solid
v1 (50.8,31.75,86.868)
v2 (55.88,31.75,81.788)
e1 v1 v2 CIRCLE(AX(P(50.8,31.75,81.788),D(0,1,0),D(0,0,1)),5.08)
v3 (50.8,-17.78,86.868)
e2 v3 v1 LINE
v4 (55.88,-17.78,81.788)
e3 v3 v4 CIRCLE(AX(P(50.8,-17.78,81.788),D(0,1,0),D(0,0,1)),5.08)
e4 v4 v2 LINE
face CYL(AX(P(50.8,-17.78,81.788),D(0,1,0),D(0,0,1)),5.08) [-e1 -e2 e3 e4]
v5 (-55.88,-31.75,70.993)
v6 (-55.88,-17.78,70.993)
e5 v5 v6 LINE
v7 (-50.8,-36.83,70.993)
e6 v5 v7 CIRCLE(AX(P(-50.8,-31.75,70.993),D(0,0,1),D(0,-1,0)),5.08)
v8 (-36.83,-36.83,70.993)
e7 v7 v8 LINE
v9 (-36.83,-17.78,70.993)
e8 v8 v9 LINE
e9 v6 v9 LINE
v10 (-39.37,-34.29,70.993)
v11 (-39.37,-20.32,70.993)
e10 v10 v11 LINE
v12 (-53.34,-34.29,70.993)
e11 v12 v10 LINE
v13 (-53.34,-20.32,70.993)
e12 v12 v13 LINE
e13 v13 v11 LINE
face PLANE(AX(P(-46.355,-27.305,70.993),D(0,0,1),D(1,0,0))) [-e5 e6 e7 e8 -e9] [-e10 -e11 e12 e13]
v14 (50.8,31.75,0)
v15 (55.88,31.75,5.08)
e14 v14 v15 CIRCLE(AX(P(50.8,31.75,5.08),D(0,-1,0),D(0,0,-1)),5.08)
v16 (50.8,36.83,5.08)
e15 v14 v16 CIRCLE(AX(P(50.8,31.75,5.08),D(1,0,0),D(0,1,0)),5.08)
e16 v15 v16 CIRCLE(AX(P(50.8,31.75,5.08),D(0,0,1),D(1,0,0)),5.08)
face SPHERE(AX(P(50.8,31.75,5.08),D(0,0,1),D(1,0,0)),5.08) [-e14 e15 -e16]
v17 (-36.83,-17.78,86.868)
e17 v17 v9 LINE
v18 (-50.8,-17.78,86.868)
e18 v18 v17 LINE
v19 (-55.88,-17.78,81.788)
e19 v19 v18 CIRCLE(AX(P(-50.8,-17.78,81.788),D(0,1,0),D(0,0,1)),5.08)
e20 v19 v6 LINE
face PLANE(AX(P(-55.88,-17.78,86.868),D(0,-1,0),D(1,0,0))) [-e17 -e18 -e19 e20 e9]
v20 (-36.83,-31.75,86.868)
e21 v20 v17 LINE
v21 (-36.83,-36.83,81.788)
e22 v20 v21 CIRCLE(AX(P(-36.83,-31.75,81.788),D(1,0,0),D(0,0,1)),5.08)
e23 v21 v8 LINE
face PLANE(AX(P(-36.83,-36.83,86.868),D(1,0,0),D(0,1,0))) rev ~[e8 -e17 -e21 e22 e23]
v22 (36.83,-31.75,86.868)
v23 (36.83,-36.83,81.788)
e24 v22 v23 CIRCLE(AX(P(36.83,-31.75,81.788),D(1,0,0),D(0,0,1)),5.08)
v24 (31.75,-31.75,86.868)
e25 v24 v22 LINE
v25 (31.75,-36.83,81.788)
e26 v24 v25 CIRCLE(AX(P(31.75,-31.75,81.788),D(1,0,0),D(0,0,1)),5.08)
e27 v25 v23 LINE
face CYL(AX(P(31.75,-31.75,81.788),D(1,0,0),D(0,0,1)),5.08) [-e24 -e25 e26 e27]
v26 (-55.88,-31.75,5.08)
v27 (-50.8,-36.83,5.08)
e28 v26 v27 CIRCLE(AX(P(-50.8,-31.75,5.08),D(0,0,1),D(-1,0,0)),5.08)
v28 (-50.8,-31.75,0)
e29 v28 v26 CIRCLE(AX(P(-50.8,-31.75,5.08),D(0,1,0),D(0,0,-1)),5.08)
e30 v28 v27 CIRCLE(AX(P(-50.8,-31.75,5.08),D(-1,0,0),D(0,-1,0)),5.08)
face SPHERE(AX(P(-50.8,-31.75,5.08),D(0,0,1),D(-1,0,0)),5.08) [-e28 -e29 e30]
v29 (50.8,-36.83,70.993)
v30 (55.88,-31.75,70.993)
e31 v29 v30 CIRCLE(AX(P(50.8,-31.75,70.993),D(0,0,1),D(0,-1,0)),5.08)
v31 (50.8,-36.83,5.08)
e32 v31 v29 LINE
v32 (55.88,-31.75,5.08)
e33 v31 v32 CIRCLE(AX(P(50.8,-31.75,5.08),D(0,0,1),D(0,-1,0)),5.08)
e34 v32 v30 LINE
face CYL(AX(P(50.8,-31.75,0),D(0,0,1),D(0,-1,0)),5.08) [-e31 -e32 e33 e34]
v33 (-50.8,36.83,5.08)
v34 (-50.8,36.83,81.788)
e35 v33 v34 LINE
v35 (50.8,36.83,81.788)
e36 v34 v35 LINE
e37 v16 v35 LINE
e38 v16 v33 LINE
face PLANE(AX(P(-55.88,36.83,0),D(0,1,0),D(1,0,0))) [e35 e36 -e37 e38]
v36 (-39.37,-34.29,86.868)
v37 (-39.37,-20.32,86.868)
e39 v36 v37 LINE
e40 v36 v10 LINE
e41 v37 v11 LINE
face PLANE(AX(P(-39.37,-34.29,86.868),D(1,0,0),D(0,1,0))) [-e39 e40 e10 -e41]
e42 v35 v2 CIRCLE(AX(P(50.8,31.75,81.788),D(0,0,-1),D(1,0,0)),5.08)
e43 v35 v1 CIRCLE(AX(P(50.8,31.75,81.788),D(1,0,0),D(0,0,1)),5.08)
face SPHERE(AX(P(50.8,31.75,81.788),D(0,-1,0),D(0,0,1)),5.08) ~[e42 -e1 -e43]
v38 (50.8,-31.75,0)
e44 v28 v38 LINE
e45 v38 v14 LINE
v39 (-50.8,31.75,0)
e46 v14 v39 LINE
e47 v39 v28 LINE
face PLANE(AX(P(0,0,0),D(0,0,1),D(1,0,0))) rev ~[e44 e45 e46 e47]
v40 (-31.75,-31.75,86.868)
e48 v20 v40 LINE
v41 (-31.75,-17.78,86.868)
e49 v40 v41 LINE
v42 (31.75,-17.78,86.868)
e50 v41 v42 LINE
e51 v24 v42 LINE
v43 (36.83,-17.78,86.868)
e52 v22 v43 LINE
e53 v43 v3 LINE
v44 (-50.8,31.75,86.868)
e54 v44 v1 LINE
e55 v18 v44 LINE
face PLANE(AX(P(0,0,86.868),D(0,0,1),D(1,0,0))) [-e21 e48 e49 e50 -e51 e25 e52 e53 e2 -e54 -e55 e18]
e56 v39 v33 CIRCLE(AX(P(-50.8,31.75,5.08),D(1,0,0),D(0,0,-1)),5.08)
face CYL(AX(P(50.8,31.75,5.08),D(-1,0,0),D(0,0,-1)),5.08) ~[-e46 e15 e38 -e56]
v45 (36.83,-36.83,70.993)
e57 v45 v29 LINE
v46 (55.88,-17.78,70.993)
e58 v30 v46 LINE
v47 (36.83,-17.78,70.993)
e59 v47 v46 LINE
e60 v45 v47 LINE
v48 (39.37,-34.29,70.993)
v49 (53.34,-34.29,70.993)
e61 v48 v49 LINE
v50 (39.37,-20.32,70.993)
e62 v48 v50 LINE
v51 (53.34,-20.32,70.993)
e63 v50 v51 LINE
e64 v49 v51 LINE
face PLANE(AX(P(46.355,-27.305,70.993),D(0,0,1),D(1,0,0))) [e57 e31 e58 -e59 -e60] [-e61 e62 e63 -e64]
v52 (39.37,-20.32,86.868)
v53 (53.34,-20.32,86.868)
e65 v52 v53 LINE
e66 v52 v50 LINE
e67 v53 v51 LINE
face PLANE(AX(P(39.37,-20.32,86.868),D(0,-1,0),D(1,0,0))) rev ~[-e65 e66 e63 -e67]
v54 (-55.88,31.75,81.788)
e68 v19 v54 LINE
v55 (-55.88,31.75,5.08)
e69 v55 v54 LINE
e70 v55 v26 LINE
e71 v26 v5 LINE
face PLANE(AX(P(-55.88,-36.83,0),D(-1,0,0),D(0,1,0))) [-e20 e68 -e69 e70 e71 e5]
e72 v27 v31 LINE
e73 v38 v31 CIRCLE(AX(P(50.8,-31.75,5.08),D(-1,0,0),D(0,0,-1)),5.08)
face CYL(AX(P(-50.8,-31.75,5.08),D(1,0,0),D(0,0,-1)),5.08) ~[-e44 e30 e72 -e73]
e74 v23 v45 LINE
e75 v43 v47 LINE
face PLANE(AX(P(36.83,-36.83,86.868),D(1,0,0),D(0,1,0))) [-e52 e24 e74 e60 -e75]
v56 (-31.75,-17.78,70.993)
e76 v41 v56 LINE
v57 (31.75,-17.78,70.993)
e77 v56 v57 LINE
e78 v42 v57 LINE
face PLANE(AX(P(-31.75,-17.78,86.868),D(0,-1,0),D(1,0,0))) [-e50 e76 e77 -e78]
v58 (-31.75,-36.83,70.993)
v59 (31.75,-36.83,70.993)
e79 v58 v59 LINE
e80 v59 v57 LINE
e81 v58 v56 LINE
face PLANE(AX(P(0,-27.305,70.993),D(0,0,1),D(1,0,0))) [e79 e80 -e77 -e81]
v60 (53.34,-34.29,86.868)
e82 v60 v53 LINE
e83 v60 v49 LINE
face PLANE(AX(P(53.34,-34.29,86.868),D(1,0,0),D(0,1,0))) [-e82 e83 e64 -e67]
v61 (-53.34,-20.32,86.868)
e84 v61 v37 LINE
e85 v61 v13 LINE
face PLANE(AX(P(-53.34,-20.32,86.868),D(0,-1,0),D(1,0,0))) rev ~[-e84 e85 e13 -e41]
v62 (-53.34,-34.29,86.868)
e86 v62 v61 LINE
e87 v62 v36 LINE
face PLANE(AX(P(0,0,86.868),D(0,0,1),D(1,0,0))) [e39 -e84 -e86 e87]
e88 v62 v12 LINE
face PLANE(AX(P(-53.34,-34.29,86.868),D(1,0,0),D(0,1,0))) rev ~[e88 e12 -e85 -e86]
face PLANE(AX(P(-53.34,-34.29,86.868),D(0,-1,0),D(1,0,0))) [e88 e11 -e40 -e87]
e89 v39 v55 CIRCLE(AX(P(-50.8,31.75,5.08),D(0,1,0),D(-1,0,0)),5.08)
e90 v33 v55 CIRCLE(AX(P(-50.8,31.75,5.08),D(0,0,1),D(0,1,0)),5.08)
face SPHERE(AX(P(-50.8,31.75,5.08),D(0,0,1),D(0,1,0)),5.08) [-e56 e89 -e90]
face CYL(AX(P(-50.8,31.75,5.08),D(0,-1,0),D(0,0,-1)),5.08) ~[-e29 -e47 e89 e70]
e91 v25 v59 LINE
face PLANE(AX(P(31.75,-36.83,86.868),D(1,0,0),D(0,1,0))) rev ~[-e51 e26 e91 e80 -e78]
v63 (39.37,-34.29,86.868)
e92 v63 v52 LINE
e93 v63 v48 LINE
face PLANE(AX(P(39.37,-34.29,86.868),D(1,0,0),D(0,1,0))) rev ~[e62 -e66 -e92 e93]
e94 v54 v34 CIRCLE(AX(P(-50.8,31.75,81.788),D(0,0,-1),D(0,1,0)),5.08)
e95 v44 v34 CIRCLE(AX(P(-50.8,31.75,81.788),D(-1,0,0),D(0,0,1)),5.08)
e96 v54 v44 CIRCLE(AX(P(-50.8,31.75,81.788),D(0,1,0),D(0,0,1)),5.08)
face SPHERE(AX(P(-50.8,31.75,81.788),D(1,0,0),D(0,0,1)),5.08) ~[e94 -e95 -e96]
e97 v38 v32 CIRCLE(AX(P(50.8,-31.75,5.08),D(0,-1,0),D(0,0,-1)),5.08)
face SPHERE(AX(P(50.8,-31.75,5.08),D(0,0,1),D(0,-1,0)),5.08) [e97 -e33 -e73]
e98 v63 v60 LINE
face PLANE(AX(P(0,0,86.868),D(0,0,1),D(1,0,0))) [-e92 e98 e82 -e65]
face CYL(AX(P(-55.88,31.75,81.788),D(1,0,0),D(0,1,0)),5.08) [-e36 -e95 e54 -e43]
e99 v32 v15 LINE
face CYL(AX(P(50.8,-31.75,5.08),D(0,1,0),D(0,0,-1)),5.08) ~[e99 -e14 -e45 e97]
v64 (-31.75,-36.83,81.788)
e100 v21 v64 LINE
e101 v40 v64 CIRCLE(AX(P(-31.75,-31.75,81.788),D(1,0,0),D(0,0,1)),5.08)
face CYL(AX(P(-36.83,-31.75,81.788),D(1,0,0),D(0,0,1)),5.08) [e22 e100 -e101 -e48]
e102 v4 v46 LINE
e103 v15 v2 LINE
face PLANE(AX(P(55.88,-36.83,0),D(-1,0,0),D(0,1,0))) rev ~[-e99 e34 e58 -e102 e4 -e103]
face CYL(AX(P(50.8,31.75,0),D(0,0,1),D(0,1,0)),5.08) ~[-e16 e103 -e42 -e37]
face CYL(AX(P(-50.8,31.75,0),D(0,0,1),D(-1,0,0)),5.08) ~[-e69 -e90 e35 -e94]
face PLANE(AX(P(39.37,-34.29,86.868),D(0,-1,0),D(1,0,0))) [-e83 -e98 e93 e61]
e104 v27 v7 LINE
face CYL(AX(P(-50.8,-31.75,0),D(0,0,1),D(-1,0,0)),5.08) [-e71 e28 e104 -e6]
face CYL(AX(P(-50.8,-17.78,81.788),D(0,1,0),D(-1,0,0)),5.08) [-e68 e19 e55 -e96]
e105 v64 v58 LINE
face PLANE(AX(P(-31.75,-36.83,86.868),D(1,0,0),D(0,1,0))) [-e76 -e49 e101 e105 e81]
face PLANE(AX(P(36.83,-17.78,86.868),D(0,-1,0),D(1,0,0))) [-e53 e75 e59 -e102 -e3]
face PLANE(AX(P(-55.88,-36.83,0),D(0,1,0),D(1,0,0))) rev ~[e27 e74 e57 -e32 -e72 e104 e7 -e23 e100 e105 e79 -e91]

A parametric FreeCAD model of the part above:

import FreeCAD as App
import Part
import Sketcher
from FreeCAD import Vector
Q = App.Units.Quantity


def edges_at(feature, points):
    """Names of the edges that pass closest to the given points."""
    edges = feature.Shape.Edges
    near = lambda p: min(range(len(edges)), key=lambda i: edges[i].distToShape(Part.Vertex(*p))[0])
    return sorted({f"Edge{near(p) + 1}" for p in points})

doc = App.newDocument("Part")
body = doc.addObject("PartDesign::Body", "Body")

# Sketch on XY plane
sketch1 = body.newObject("Sketcher::SketchObject", "Sketch")
sketch1.AttachmentSupport = (doc.getObject("XY_Plane"), [""])
sketch1.MapMode = "FlatFace"
sketch1.addGeometry([
    Part.LineSegment(Vector(-56, 37, 0), Vector(-56, -37, 0)),
    Part.LineSegment(Vector(-56, -37, 0), Vector(56, -37, 0)),
    Part.LineSegment(Vector(56, -37, 0), Vector(56, 37, 0)),
    Part.LineSegment(Vector(56, 37, 0), Vector(-56, 37, 0)),
], False)
sketch1.addConstraint([
    Sketcher.Constraint("Coincident", 0, 2, 1, 1),
    Sketcher.Constraint("Coincident", 1, 2, 2, 1),
    Sketcher.Constraint("Coincident", 2, 2, 3, 1),
    Sketcher.Constraint("Coincident", 3, 2, 0, 1),
    Sketcher.Constraint("Vertical", 0),
    Sketcher.Constraint("Horizontal", 1),
    Sketcher.Constraint("Vertical", 2),
    Sketcher.Constraint("Horizontal", 3),
    Sketcher.Constraint("Symmetric", 0, 2, 2, 2, -1, 1),
    Sketcher.Constraint("DistanceX", 1, 1, 1, 2, Q("4.4 in")),
    Sketcher.Constraint("DistanceY", 0, 2, 0, 1, Q("2.9 in")),
])
pad1 = body.newObject("PartDesign::Pad", "Pad")
pad1.Profile = sketch1
pad1.Length = Q("3.42 in")

# Sketch on XY plane
sketch2 = body.newObject("Sketcher::SketchObject", "Sketch001")
sketch2.AttachmentSupport = (doc.getObject("XY_Plane"), [""])
sketch2.MapMode = "FlatFace"
sketch2.AttachmentOffset = App.Placement(Vector(0, 0, 3.42 * 25.4), App.Rotation())
sketch2.addGeometry([
    Part.LineSegment(Vector(-56, -18, 0), Vector(-56, -37, 0)),  # 0
    Part.LineSegment(Vector(-56, -37, 0), Vector(-37, -37, 0)),  # 1
    Part.LineSegment(Vector(-37, -37, 0), Vector(-37, -18, 0)),  # 2
    Part.LineSegment(Vector(-37, -18, 0), Vector(-56, -18, 0)),  # 3
    Part.LineSegment(Vector(-39, -34, 0), Vector(-53, -34, 0)),  # 4
    Part.LineSegment(Vector(-53, -34, 0), Vector(-53, -20, 0)),  # 5
    Part.LineSegment(Vector(-53, -20, 0), Vector(-39, -20, 0)),  # 6
    Part.LineSegment(Vector(-39, -20, 0), Vector(-39, -34, 0)),  # 7
    Part.LineSegment(Vector(-32, -18, 0), Vector(-32, -37, 0)),  # 8
    Part.LineSegment(Vector(-32, -37, 0), Vector(32, -37, 0)),  # 9
    Part.LineSegment(Vector(32, -37, 0), Vector(32, -18, 0)),  # 10
    Part.LineSegment(Vector(32, -18, 0), Vector(-32, -18, 0)),  # 11
    Part.LineSegment(Vector(37, -18, 0), Vector(37, -37, 0)),  # 12
    Part.LineSegment(Vector(37, -37, 0), Vector(56, -37, 0)),  # 13
    Part.LineSegment(Vector(56, -37, 0), Vector(56, -18, 0)),  # 14
    Part.LineSegment(Vector(56, -18, 0), Vector(37, -18, 0)),  # 15
    Part.LineSegment(Vector(53, -34, 0), Vector(39, -34, 0)),  # 16
    Part.LineSegment(Vector(39, -34, 0), Vector(39, -20, 0)),  # 17
    Part.LineSegment(Vector(39, -20, 0), Vector(53, -20, 0)),  # 18
    Part.LineSegment(Vector(53, -20, 0), Vector(53, -34, 0)),  # 19
], False)
sketch2.addConstraint([
    Sketcher.Constraint("Coincident", 0, 2, 1, 1),
    Sketcher.Constraint("Coincident", 1, 2, 2, 1),
    Sketcher.Constraint("Coincident", 2, 2, 3, 1),
    Sketcher.Constraint("Coincident", 3, 2, 0, 1),
    Sketcher.Constraint("Coincident", 4, 2, 5, 1),
    Sketcher.Constraint("Coincident", 5, 2, 6, 1),
    Sketcher.Constraint("Coincident", 6, 2, 7, 1),
    Sketcher.Constraint("Coincident", 7, 2, 4, 1),
    Sketcher.Constraint("Coincident", 8, 2, 9, 1),
    Sketcher.Constraint("Coincident", 9, 2, 10, 1),
    Sketcher.Constraint("Coincident", 10, 2, 11, 1),
    Sketcher.Constraint("Coincident", 11, 2, 8, 1),
    Sketcher.Constraint("Coincident", 12, 2, 13, 1),
    Sketcher.Constraint("Coincident", 13, 2, 14, 1),
    Sketcher.Constraint("Coincident", 14, 2, 15, 1),
    Sketcher.Constraint("Coincident", 15, 2, 12, 1),
    Sketcher.Constraint("Coincident", 16, 2, 17, 1),
    Sketcher.Constraint("Coincident", 17, 2, 18, 1),
    Sketcher.Constraint("Coincident", 18, 2, 19, 1),
    Sketcher.Constraint("Coincident", 19, 2, 16, 1),
    Sketcher.Constraint("Vertical", 0),
    Sketcher.Constraint("Horizontal", 1),
    Sketcher.Constraint("Vertical", 2),
    Sketcher.Constraint("Horizontal", 3),
    Sketcher.Constraint("Horizontal", 4),
    Sketcher.Constraint("Vertical", 5),
    Sketcher.Constraint("Horizontal", 6),
    Sketcher.Constraint("Vertical", 7),
    Sketcher.Constraint("Vertical", 8),
    Sketcher.Constraint("Horizontal", 9),
    Sketcher.Constraint("Vertical", 10),
    Sketcher.Constraint("Horizontal", 11),
    Sketcher.Constraint("Vertical", 12),
    Sketcher.Constraint("Horizontal", 13),
    Sketcher.Constraint("Vertical", 14),
    Sketcher.Constraint("Horizontal", 15),
    Sketcher.Constraint("Horizontal", 16),
    Sketcher.Constraint("Vertical", 17),
    Sketcher.Constraint("Horizontal", 18),
    Sketcher.Constraint("Vertical", 19),
    Sketcher.Constraint("Symmetric", 1, 2, 12, 2, -2),
    Sketcher.Constraint("Symmetric", 3, 2, 14, 2, -2),
    Sketcher.Constraint("Symmetric", 7, 2, 16, 2, -2),
    Sketcher.Constraint("Symmetric", 5, 2, 18, 2, -2),
    Sketcher.Constraint("Horizontal", 1, 2, 8, 2),
    Sketcher.Constraint("Horizontal", 3, 2, 10, 2),
    Sketcher.Constraint("Equal", 15, 0),
    Sketcher.Constraint("Equal", 18, 5),
    Sketcher.Constraint("DistanceX", 9, 1, 9, 2, Q("2.5 in")),
    Sketcher.Constraint("DistanceX", 1, 1, 1, 2, Q("0.75 in")),
    Sketcher.Constraint("DistanceX", 4, 2, 4, 1, Q("0.55 in")),
    Sketcher.Constraint("DistanceX", 0, 2, -1, 1, Q("2.2 in")),
    Sketcher.Constraint("DistanceY", 2, 2, -1, 1, Q("0.7 in")),
    Sketcher.Constraint("DistanceX", 4, 2, -1, 1, Q("2.1 in")),
    Sketcher.Constraint("DistanceY", 5, 2, -1, 1, Q("0.8 in")),
    Sketcher.Constraint("DistanceX", 1, 2, 8, 2, Q("0.2 in")),
])
pocket1 = body.newObject("PartDesign::Pocket", "Pocket")
pocket1.Profile = sketch2
pocket1.Length = Q("0.625 in")
doc.recompute()

fillet = body.newObject("PartDesign::Fillet", "Fillet")
fillet.Base = (pocket1, edges_at(pocket1, [
    (34.29, -36.83, 86.868),
    (-34.29, -36.83, 86.868),
    (55.88, 9.525, 86.868),
    (0, 36.83, 86.868),
    (-55.88, 9.525, 86.868),
    (-55.88, -36.83, 35.496),
    (55.88, -36.83, 35.496),
    (55.88, 36.83, 43.434),
    (-55.88, 36.83, 43.434),
]))
fillet.Radius = Q("0.2 in")
doc.recompute()

fillet2 = body.newObject("PartDesign::Fillet", "Fillet001")
fillet2.Base = (fillet, edges_at(fillet, [
    (55.88, 0, 0),
    (54.392, -35.342, 0),
    (54.392, 35.342, 0),
    (0, -36.83, 0),
    (0, 36.83, 0),
    (-54.392, -35.342, 0),
    (-54.392, 35.342, 0),
    (-55.88, 0, 0),
]))
fillet2.Radius = Q("0.2 in")

doc.recompute()
